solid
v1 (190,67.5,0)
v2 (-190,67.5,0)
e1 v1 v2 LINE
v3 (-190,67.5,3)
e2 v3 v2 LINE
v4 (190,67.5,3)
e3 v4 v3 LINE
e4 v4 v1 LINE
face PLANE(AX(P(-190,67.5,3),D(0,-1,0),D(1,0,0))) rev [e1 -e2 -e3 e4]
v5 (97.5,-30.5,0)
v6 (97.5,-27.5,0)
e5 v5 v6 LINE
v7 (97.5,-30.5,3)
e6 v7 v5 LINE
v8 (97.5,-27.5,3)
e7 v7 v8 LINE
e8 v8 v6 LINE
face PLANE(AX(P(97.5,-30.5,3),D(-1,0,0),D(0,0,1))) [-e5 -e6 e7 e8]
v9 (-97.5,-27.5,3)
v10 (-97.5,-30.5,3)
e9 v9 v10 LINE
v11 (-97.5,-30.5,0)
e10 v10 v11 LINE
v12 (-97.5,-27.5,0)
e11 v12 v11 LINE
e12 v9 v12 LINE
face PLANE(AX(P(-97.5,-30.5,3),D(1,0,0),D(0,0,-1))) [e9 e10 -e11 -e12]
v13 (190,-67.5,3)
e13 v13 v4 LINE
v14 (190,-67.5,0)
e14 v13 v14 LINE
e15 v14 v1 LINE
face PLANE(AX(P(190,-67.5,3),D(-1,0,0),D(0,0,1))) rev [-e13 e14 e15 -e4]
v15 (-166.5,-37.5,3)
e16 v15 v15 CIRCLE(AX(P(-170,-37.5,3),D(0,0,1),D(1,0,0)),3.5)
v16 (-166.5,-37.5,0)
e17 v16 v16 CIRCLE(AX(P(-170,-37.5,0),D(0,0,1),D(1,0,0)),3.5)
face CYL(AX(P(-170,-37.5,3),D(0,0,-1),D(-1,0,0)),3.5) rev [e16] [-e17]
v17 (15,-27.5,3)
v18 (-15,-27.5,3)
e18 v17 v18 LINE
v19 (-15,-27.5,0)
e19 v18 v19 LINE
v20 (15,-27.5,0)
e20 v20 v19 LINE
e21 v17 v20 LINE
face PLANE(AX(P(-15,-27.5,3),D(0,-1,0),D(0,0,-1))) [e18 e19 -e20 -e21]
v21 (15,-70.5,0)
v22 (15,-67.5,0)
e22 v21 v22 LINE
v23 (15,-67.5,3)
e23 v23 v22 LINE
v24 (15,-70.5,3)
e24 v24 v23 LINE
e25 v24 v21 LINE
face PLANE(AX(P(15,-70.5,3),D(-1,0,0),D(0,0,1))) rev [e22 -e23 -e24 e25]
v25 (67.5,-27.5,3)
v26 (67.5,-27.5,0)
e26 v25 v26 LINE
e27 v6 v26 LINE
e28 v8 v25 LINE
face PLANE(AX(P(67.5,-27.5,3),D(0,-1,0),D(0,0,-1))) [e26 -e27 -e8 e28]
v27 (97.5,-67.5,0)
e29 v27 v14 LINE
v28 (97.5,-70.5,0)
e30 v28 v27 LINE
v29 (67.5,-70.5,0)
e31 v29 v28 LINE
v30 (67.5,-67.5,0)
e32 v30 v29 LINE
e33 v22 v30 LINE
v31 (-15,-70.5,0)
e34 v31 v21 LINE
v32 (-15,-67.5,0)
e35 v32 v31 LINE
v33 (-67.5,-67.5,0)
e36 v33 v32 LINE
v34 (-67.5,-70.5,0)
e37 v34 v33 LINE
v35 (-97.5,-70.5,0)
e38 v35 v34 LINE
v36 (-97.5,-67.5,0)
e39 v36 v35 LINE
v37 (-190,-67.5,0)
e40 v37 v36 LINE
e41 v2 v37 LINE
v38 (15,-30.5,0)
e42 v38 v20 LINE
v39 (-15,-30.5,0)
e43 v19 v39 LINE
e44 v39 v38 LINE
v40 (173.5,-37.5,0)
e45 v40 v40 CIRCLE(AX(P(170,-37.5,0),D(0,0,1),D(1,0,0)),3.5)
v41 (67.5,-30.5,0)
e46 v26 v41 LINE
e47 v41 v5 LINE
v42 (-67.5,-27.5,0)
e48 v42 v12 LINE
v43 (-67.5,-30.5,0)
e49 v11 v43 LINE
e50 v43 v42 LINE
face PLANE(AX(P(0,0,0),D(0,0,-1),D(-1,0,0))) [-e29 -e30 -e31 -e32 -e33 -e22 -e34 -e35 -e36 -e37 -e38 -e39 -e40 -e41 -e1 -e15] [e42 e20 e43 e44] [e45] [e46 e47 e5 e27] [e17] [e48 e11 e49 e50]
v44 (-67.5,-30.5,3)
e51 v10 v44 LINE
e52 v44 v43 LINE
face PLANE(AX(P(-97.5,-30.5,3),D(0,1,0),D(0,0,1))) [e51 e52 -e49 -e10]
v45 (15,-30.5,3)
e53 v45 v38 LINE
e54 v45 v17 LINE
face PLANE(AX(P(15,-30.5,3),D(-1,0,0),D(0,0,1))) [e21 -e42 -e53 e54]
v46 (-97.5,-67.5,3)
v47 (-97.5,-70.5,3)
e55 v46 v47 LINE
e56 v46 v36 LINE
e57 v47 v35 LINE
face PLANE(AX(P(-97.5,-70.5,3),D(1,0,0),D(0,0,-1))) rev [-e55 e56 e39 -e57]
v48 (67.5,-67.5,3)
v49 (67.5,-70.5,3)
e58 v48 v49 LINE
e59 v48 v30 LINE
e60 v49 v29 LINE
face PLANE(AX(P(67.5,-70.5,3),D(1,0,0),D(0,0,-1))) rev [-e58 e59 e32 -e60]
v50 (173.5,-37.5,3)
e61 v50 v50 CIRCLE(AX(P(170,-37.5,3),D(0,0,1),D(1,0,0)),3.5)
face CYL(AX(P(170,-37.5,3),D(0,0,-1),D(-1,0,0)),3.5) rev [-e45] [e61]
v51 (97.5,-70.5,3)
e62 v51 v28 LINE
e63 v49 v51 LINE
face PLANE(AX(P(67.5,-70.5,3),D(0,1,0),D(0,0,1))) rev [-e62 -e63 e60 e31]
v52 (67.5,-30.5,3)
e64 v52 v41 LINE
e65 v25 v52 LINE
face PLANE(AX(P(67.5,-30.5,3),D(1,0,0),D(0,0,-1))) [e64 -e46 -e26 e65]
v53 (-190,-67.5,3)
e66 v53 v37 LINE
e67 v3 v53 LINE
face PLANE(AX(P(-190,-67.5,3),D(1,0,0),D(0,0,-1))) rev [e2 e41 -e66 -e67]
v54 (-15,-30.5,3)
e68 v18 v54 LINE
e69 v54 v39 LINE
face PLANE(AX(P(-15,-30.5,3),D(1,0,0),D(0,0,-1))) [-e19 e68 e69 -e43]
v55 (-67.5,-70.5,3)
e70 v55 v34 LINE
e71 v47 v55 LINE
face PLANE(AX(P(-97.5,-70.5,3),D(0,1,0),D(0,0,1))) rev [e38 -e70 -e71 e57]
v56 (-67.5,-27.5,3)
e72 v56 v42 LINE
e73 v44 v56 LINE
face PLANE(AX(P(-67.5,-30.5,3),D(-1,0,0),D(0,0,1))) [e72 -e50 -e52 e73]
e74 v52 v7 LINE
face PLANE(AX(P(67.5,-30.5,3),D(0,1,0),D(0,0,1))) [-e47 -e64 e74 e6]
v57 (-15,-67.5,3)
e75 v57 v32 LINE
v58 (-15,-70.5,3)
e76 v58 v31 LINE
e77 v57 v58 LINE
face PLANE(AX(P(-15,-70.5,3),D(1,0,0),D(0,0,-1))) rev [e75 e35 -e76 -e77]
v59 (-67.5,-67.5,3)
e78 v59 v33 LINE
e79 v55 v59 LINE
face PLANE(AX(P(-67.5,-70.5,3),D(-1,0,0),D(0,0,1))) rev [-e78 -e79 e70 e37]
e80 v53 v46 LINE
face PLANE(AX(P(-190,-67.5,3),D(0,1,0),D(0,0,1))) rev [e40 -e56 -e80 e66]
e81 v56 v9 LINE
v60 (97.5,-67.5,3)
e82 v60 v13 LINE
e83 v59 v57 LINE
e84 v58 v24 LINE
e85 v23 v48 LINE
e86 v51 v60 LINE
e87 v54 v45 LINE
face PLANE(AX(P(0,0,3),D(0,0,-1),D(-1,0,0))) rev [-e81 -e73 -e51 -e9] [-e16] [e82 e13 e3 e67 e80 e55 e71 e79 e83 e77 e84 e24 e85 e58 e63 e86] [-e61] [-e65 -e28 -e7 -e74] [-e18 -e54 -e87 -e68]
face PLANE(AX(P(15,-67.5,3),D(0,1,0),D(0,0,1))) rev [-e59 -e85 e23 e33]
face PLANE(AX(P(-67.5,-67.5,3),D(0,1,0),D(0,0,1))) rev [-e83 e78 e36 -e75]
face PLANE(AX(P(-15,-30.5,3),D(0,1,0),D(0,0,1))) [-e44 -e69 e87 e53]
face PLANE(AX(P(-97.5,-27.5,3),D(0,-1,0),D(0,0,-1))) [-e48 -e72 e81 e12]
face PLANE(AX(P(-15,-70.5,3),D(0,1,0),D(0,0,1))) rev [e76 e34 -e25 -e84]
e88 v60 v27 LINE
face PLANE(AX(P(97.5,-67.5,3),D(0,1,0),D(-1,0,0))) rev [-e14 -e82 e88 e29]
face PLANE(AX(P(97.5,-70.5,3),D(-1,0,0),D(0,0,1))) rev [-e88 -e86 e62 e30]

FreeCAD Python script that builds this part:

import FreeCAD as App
import Part
import Sketcher
from FreeCAD import Vector

doc = App.newDocument("Part")
body = doc.addObject("PartDesign::Body", "Body")

# Sketch on XY plane
sketch1 = body.newObject("Sketcher::SketchObject", "Sketch")
sketch1.AttachmentSupport = (doc.getObject("XY_Plane"), [""])
sketch1.MapMode = "FlatFace"
sketch1.addGeometry([
    Part.LineSegment(Vector(-190, -67.5, 0), Vector(-97.5, -67.5, 0)),  # 0
    Part.LineSegment(Vector(-97.5, -67.5, 0), Vector(-97.5, -70.5, 0)),  # 1
    Part.LineSegment(Vector(-97.5, -70.5, 0), Vector(-67.5, -70.5, 0)),  # 2
    Part.LineSegment(Vector(-67.5, -70.5, 0), Vector(-67.5, -67.5, 0)),  # 3
    Part.LineSegment(Vector(-67.5, -67.5, 0), Vector(-15, -67.5, 0)),  # 4
    Part.LineSegment(Vector(-15, -67.5, 0), Vector(-15, -70.5, 0)),  # 5
    Part.LineSegment(Vector(-15, -70.5, 0), Vector(15, -70.5, 0)),  # 6
    Part.LineSegment(Vector(15, -70.5, 0), Vector(15, -67.5, 0)),  # 7
    Part.LineSegment(Vector(15, -67.5, 0), Vector(67.5, -67.5, 0)),  # 8
    Part.LineSegment(Vector(67.5, -67.5, 0), Vector(67.5, -70.5, 0)),  # 9
    Part.LineSegment(Vector(67.5, -70.5, 0), Vector(97.5, -70.5, 0)),  # 10
    Part.LineSegment(Vector(97.5, -70.5, 0), Vector(97.5, -67.5, 0)),  # 11
    Part.LineSegment(Vector(97.5, -67.5, 0), Vector(190, -67.5, 0)),  # 12
    Part.LineSegment(Vector(190, -67.5, 0), Vector(190, 67.5, 0)),  # 13
    Part.LineSegment(Vector(190, 67.5, 0), Vector(-190, 67.5, 0)),  # 14
    Part.LineSegment(Vector(-190, 67.5, 0), Vector(-190, -67.5, 0)),  # 15
    Part.Circle(Vector(-170, -37.5, 0), Vector(0, 0, 1), 3.5),  # 16
    Part.Circle(Vector(170, -37.5, 0), Vector(0, 0, 1), 3.5),  # 17
    Part.LineSegment(Vector(-67.5, -30.5, 0), Vector(-97.5, -30.5, 0)),  # 18
    Part.LineSegment(Vector(-97.5, -30.5, 0), Vector(-97.5, -27.5, 0)),  # 19
    Part.LineSegment(Vector(-97.5, -27.5, 0), Vector(-67.5, -27.5, 0)),  # 20
    Part.LineSegment(Vector(-67.5, -27.5, 0), Vector(-67.5, -30.5, 0)),  # 21
    Part.LineSegment(Vector(15, -30.5, 0), Vector(-15, -30.5, 0)),  # 22
    Part.LineSegment(Vector(-15, -30.5, 0), Vector(-15, -27.5, 0)),  # 23
    Part.LineSegment(Vector(-15, -27.5, 0), Vector(15, -27.5, 0)),  # 24
    Part.LineSegment(Vector(15, -27.5, 0), Vector(15, -30.5, 0)),  # 25
    Part.LineSegment(Vector(97.5, -30.5, 0), Vector(67.5, -30.5, 0)),  # 26
    Part.LineSegment(Vector(67.5, -30.5, 0), Vector(67.5, -27.5, 0)),  # 27
    Part.LineSegment(Vector(67.5, -27.5, 0), Vector(97.5, -27.5, 0)),  # 28
    Part.LineSegment(Vector(97.5, -27.5, 0), Vector(97.5, -30.5, 0)),  # 29
], False)
sketch1.addConstraint([
    Sketcher.Constraint("Coincident", 0, 2, 1, 1),
    Sketcher.Constraint("Coincident", 1, 2, 2, 1),
    Sketcher.Constraint("Coincident", 2, 2, 3, 1),
    Sketcher.Constraint("Coincident", 3, 2, 4, 1),
    Sketcher.Constraint("Coincident", 4, 2, 5, 1),
    Sketcher.Constraint("Coincident", 5, 2, 6, 1),
    Sketcher.Constraint("Coincident", 6, 2, 7, 1),
    Sketcher.Constraint("Coincident", 7, 2, 8, 1),
    Sketcher.Constraint("Coincident", 8, 2, 9, 1),
    Sketcher.Constraint("Coincident", 9, 2, 10, 1),
    Sketcher.Constraint("Coincident", 10, 2, 11, 1),
    Sketcher.Constraint("Coincident", 11, 2, 12, 1),
    Sketcher.Constraint("Coincident", 12, 2, 13, 1),
    Sketcher.Constraint("Coincident", 13, 2, 14, 1),
    Sketcher.Constraint("Coincident", 14, 2, 15, 1),
    Sketcher.Constraint("Coincident", 15, 2, 0, 1),
    Sketcher.Constraint("Coincident", 18, 2, 19, 1),
    Sketcher.Constraint("Coincident", 19, 2, 20, 1),
    Sketcher.Constraint("Coincident", 20, 2, 21, 1),
    Sketcher.Constraint("Coincident", 21, 2, 18, 1),
    Sketcher.Constraint("Coincident", 22, 2, 23, 1),
    Sketcher.Constraint("Coincident", 23, 2, 24, 1),
    Sketcher.Constraint("Coincident", 24, 2, 25, 1),
    Sketcher.Constraint("Coincident", 25, 2, 22, 1),
    Sketcher.Constraint("Coincident", 26, 2, 27, 1),
    Sketcher.Constraint("Coincident", 27, 2, 28, 1),
    Sketcher.Constraint("Coincident", 28, 2, 29, 1),
    Sketcher.Constraint("Coincident", 29, 2, 26, 1),
    Sketcher.Constraint("Horizontal", 0),
    Sketcher.Constraint("Vertical", 1),
    Sketcher.Constraint("Horizontal", 2),
    Sketcher.Constraint("Vertical", 3),
    Sketcher.Constraint("Horizontal", 4),
    Sketcher.Constraint("Vertical", 5),
    Sketcher.Constraint("Horizontal", 6),
    Sketcher.Constraint("Vertical", 7),
    Sketcher.Constraint("Horizontal", 8),
    Sketcher.Constraint("Vertical", 9),
    Sketcher.Constraint("Horizontal", 10),
    Sketcher.Constraint("Vertical", 11),
    Sketcher.Constraint("Horizontal", 12),
    Sketcher.Constraint("Vertical", 13),
    Sketcher.Constraint("Horizontal", 14),
    Sketcher.Constraint("Vertical", 15),
    Sketcher.Constraint("Horizontal", 18),
    Sketcher.Constraint("Vertical", 19),
    Sketcher.Constraint("Horizontal", 20),
    Sketcher.Constraint("Vertical", 21),
    Sketcher.Constraint("Horizontal", 22),
    Sketcher.Constraint("Vertical", 23),
    Sketcher.Constraint("Horizontal", 24),
    Sketcher.Constraint("Vertical", 25),
    Sketcher.Constraint("Horizontal", 26),
    Sketcher.Constraint("Vertical", 27),
    Sketcher.Constraint("Horizontal", 28),
    Sketcher.Constraint("Vertical", 29),
    Sketcher.Constraint("Equal", 16, 17),
    Sketcher.Constraint("Symmetric", 12, 2, 14, 2, -1, 1),
    Sketcher.Constraint("Symmetric", 16, 3, 17, 3, -2),
    Sketcher.Constraint("Symmetric", 4, 2, 7, 2, -2),
    Sketcher.Constraint("Symmetric", 2, 2, 9, 2, -2),
    Sketcher.Constraint("Symmetric", 0, 2, 11, 2, -2),
    Sketcher.Constraint("Symmetric", 21, 2, 26, 2, -2),
    Sketcher.Constraint("Symmetric", 19, 2, 28, 2, -2),
    Sketcher.Constraint("Horizontal", 0, 2, 3, 2),
    Sketcher.Constraint("Horizontal", 2, 2, 5, 2),
    Sketcher.Constraint("Horizontal", 21, 2, 22, 2),
    Sketcher.Constraint("Horizontal", 20, 2, 23, 2),
    Sketcher.Constraint("Vertical", 1, 2, 18, 2),
    Sketcher.Constraint("Vertical", 3, 2, 20, 2),
    Sketcher.Constraint("Vertical", 5, 2, 22, 2),
    Sketcher.Constraint("Vertical", 7, 2, 24, 2),
    Sketcher.Constraint("Equal", 2, 6),
    Sketcher.Constraint("Equal", 11, 19),
    Sketcher.Constraint("Diameter", 16, 7.0),
    Sketcher.Constraint("DistanceX", 2, 1, 2, 2, 30.0),
    Sketcher.Constraint("DistanceX", 14, 2, 14, 1, 380.0),
    Sketcher.Constraint("DistanceY", 1, 2, 1, 1, 3.0),
    Sketcher.Constraint("DistanceY", 13, 1, 13, 2, 135.0),
    Sketcher.Constraint("DistanceX", 0, 1, 0, 2, 92.5),
    Sketcher.Constraint("DistanceX", 16, 3, -1, 1, 170.0),
    Sketcher.Constraint("DistanceY", 0, 2, 16, 3, 30.0),
    Sketcher.Constraint("DistanceY", 0, 2, 18, 2, 37.0),
])
pad1 = body.newObject("PartDesign::Pad", "Pad")
pad1.Profile = sketch1
pad1.Length = 3

doc.recompute()
